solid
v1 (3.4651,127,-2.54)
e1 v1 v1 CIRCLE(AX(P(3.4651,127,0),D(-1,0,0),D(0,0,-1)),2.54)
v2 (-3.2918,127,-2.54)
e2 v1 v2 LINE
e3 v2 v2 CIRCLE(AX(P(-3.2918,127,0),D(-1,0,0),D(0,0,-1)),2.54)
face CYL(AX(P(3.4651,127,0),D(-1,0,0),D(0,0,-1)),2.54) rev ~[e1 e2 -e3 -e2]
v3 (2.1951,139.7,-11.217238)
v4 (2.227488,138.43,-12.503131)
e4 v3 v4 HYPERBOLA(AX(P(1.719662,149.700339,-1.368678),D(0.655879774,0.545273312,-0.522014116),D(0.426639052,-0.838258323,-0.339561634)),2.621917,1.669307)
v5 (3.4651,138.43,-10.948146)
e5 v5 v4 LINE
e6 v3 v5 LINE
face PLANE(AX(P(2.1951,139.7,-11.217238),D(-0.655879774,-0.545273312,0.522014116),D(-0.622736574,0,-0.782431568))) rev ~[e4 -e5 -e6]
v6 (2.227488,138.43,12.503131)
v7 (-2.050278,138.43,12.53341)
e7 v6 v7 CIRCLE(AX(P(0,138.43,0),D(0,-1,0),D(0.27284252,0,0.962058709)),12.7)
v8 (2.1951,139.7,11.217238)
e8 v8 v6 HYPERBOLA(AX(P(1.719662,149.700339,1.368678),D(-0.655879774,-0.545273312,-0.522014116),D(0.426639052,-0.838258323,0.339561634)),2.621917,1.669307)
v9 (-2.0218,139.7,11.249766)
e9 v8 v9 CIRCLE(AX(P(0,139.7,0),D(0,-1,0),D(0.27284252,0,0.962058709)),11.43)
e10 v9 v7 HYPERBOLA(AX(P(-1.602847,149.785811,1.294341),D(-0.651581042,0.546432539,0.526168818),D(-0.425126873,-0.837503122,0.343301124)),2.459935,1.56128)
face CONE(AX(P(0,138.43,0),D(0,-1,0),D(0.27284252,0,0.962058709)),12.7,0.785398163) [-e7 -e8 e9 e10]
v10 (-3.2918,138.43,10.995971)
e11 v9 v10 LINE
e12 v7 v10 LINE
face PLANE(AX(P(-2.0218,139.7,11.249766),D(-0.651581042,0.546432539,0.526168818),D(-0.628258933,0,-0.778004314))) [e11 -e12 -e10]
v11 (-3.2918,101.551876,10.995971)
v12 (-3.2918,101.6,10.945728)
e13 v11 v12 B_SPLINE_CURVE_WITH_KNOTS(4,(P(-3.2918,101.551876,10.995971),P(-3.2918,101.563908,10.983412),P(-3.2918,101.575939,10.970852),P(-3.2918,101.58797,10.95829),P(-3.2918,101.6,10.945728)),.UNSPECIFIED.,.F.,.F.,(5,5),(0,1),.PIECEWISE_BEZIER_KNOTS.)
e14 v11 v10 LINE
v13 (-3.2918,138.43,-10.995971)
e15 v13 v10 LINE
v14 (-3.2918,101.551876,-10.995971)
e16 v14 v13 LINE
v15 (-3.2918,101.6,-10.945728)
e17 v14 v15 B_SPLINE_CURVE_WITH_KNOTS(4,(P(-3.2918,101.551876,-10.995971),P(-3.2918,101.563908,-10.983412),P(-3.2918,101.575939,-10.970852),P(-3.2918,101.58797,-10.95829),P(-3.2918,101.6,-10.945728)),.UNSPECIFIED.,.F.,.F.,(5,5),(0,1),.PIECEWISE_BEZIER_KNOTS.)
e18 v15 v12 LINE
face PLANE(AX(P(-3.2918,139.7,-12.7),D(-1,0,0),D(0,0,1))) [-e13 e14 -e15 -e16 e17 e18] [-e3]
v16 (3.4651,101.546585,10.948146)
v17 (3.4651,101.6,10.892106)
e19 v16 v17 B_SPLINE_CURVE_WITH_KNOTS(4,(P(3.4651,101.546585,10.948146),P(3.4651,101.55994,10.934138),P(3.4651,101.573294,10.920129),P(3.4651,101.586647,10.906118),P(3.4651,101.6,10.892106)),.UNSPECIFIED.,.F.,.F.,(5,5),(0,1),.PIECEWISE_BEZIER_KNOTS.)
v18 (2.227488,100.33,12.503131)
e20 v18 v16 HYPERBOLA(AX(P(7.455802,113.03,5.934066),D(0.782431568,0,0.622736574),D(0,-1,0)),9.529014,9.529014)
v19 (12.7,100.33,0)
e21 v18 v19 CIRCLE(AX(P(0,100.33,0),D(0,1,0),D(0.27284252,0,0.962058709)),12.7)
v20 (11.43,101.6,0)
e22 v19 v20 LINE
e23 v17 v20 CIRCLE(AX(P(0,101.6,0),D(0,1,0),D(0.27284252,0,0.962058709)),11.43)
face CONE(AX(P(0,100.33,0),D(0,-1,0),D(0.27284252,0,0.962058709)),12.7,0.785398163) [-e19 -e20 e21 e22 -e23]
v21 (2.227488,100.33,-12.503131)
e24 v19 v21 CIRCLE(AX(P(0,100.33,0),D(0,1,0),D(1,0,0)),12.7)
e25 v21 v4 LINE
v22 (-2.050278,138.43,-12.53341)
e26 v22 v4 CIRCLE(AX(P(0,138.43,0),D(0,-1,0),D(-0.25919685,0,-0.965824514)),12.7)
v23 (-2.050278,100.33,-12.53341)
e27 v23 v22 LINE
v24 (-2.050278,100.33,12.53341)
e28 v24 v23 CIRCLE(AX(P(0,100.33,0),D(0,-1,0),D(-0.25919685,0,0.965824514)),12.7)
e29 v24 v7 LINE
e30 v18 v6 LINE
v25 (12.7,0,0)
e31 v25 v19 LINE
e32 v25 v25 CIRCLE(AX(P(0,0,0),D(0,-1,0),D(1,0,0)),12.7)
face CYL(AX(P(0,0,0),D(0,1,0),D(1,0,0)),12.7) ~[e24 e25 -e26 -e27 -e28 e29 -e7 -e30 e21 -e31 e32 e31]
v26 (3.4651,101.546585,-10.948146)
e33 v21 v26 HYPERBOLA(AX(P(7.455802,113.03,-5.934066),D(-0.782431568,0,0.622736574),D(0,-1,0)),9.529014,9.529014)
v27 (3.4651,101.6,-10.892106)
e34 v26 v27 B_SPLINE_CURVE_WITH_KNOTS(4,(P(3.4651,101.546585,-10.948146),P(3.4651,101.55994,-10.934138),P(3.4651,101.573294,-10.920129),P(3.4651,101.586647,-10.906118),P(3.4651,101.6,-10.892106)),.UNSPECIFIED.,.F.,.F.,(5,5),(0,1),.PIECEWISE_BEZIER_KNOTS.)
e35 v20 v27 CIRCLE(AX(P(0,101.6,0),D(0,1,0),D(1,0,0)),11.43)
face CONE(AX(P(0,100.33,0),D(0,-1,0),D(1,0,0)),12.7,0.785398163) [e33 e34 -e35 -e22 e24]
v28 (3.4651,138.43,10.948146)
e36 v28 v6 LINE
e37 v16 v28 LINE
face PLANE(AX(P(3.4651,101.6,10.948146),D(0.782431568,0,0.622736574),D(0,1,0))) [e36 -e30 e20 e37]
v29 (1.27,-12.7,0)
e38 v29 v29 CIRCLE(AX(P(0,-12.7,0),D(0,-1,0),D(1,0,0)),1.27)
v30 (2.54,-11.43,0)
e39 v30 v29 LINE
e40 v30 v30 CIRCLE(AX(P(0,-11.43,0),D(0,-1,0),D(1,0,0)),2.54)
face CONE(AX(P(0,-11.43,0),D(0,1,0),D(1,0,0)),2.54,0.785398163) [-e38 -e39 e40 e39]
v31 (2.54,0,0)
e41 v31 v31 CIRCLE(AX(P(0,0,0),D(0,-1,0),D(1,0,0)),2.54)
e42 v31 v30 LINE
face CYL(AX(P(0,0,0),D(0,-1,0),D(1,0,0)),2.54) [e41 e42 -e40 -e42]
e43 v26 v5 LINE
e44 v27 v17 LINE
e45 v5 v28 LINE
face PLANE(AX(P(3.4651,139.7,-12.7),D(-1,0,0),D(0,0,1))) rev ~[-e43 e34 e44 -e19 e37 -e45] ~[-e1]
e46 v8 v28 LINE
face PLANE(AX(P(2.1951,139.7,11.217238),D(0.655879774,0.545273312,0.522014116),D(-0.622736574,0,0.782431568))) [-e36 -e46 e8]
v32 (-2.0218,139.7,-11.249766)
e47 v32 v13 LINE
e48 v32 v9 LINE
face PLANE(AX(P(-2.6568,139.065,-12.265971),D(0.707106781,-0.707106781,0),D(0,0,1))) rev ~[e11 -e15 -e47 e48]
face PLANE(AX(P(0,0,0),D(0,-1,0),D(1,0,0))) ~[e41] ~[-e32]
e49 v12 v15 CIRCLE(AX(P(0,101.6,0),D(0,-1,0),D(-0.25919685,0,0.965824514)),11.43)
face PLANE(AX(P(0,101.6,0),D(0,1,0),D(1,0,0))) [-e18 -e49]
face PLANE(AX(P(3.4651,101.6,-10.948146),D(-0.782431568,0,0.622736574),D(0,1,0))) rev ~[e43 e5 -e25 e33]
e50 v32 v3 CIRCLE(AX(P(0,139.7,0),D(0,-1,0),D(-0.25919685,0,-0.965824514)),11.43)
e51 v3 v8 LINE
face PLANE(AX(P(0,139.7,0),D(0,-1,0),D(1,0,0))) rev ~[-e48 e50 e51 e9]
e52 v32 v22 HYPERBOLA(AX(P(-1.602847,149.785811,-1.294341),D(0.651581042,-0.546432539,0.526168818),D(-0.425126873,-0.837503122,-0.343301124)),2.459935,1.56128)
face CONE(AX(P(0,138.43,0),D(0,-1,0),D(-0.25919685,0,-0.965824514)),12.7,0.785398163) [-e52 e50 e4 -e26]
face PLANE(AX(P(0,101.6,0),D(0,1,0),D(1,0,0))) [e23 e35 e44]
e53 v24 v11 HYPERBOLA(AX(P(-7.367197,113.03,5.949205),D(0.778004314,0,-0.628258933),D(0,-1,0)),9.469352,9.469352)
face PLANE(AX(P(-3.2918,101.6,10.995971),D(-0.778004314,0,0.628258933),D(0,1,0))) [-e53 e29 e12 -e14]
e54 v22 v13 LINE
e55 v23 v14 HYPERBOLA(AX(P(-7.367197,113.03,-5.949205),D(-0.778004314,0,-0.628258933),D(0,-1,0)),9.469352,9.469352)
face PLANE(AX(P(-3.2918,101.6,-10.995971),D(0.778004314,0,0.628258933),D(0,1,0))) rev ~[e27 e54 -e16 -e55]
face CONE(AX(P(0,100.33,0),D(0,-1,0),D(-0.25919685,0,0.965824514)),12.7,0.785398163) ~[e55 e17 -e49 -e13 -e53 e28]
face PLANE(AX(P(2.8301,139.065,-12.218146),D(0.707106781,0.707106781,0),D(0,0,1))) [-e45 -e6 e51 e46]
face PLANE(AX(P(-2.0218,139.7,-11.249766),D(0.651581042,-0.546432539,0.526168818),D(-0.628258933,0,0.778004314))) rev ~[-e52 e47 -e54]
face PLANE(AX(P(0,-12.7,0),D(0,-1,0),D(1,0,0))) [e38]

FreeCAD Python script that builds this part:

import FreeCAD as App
import Part
import Sketcher
Q = App.Units.Quantity


def edges_at(feature, points):
    """Names of the edges that pass closest to the given points."""
    edges = feature.Shape.Edges
    near = lambda p: min(range(len(edges)), key=lambda i: edges[i].distToShape(Part.Vertex(*p))[0])
    return sorted({f"Edge{near(p) + 1}" for p in points})

doc = App.newDocument("Part")
body = doc.addObject("PartDesign::Body", "Body")

# Sketch on XY plane
sketch1 = body.newObject("Sketcher::SketchObject", "Sketch")
sketch1.AttachmentSupport = (doc.getObject("XY_Plane"), [""])
sketch1.MapMode = "FlatFace"
sketch1.addGeometry([
    Part.LineSegment(App.Vector(0, 139.7, 0), App.Vector(0, -12.7, 0)),  # 0
    Part.LineSegment(App.Vector(0, -12.7, 0), App.Vector(2.5, -12.7, 0)),  # 1
    Part.LineSegment(App.Vector(2.5, -12.7, 0), App.Vector(2.5, 0, 0)),  # 2
    Part.LineSegment(App.Vector(2.5, 0, 0), App.Vector(12.7, 0, 0)),  # 3
    Part.LineSegment(App.Vector(12.7, 0, 0), App.Vector(12.7, 139.7, 0)),  # 4
    Part.LineSegment(App.Vector(12.7, 139.7, 0), App.Vector(0, 139.7, 0)),  # 5
], False)
sketch1.addConstraint([
    Sketcher.Constraint("Coincident", 0, 2, 1, 1),
    Sketcher.Constraint("Coincident", 1, 2, 2, 1),
    Sketcher.Constraint("Coincident", 2, 2, 3, 1),
    Sketcher.Constraint("Coincident", 3, 2, 4, 1),
    Sketcher.Constraint("Coincident", 4, 2, 5, 1),
    Sketcher.Constraint("Coincident", 5, 2, 0, 1),
    Sketcher.Constraint("Vertical", 0),
    Sketcher.Constraint("Horizontal", 1),
    Sketcher.Constraint("Vertical", 2),
    Sketcher.Constraint("Horizontal", 3),
    Sketcher.Constraint("Vertical", 4),
    Sketcher.Constraint("Horizontal", 5),
    Sketcher.Constraint("PointOnObject", 0, 2, -2),
    Sketcher.Constraint("PointOnObject", 2, 2, -1),
    Sketcher.Constraint("Equal", 5, 2),
    Sketcher.Constraint("DistanceX", 1, 1, 1, 2, Q("0.1 in")),
    Sketcher.Constraint("DistanceX", 5, 2, 5, 1, Q("0.5 in")),
    Sketcher.Constraint("DistanceY", 4, 1, 4, 2, Q("5.5 in")),
])
revolution = body.newObject("PartDesign::Revolution", "Revolution")
revolution.Profile = sketch1
revolution.ReferenceAxis = (sketch1, ["V_Axis"])
revolution.Angle = 360

# Sketch on XZ plane
sketch2 = body.newObject("Sketcher::SketchObject", "Sketch001")
sketch2.AttachmentSupport = (doc.getObject("XZ_Plane"), [""])
sketch2.MapMode = "FlatFace"
sketch2.AttachmentOffset = App.Placement(App.Vector(0, 0, -5.5 * 25.4), App.Rotation())
sketch2.addGeometry([
    Part.LineSegment(App.Vector(-13, 13, 0), App.Vector(-3, 13, 0)),  # 0
    Part.LineSegment(App.Vector(-3, 13, 0), App.Vector(-3, -13, 0)),  # 1
    Part.LineSegment(App.Vector(-3, -13, 0), App.Vector(-13, -13, 0)),  # 2
    Part.LineSegment(App.Vector(-13, -13, 0), App.Vector(-13, 13, 0)),  # 3
    Part.LineSegment(App.Vector(3, -13, 0), App.Vector(3, 13, 0)),  # 4
    Part.LineSegment(App.Vector(3, 13, 0), App.Vector(13, 13, 0)),  # 5
    Part.LineSegment(App.Vector(13, 13, 0), App.Vector(13, -13, 0)),  # 6
    Part.LineSegment(App.Vector(13, -13, 0), App.Vector(3, -13, 0)),  # 7
], False)
sketch2.addConstraint([
    Sketcher.Constraint("Coincident", 0, 2, 1, 1),
    Sketcher.Constraint("Coincident", 1, 2, 2, 1),
    Sketcher.Constraint("Coincident", 2, 2, 3, 1),
    Sketcher.Constraint("Coincident", 3, 2, 0, 1),
    Sketcher.Constraint("Coincident", 4, 2, 5, 1),
    Sketcher.Constraint("Coincident", 5, 2, 6, 1),
    Sketcher.Constraint("Coincident", 6, 2, 7, 1),
    Sketcher.Constraint("Coincident", 7, 2, 4, 1),
    Sketcher.Constraint("Horizontal", 0),
    Sketcher.Constraint("Vertical", 1),
    Sketcher.Constraint("Horizontal", 2),
    Sketcher.Constraint("Vertical", 3),
    Sketcher.Constraint("Vertical", 4),
    Sketcher.Constraint("Horizontal", 5),
    Sketcher.Constraint("Vertical", 6),
    Sketcher.Constraint("Horizontal", 7),
    Sketcher.Constraint("Symmetric", 2, 2, 5, 2, -1, 1),
    Sketcher.Constraint("Horizontal", 3, 2, 4, 2),
    Sketcher.Constraint("Horizontal", 2, 2, 6, 2),
    Sketcher.Constraint("DistanceY", 1, 2, 1, 1, Q("1 in")),
    Sketcher.Constraint("DistanceX", 3, 2, 5, 2, Q("1 in")),
    Sketcher.Constraint("DistanceX", 0, 1, 0, 2, Q("0.3704 in")),
    Sketcher.Constraint("DistanceX", 5, 1, 5, 2, Q("9.235 mm")),
])
pocket1 = body.newObject("PartDesign::Pocket", "Pocket")
pocket1.Profile = sketch2
pocket1.Length = Q("1.5 in")
pocket1.Reversed = True

# Sketch on YZ plane
sketch3 = body.newObject("Sketcher::SketchObject", "Sketch002")
sketch3.AttachmentSupport = (doc.getObject("YZ_Plane"), [""])
sketch3.MapMode = "FlatFace"
sketch3.AttachmentOffset = App.Placement(App.Vector(0, 0, 3.4651), App.Rotation())
sketch3.addGeometry(Part.Circle(App.Vector(127, 0, 0), App.Vector(0, 0, 1), 2.5), False)
sketch3.addConstraint([
    Sketcher.Constraint("PointOnObject", 0, 3, -1),
    Sketcher.Constraint("Diameter", 0, Q("0.2 in")),
    Sketcher.Constraint("DistanceX", -1, 1, 0, 3, Q("5 in")),
])
doc.recompute()
hole = body.newObject("PartDesign::Hole", "Hole")
hole.Profile = sketch3
hole.ThreadType = "None"
hole.Diameter = Q("0.2 in")
hole.DepthType = "ThroughAll"
doc.recompute()

chamfer = body.newObject("PartDesign::Chamfer", "Chamfer")
chamfer.Base = (hole, edges_at(hole, [
    (10.132, 101.6, -7.658),
    (10.132, 101.6, 7.658),
    (3.465, 120.65, -12.218),
    (3.465, 120.65, 12.218),
    (3.465, 139.7, 0),
    (0.09, 139.7, -12.7),
    (0.09, 139.7, 12.7),
    (-3.292, 139.7, 0),
    (-3.292, 120.65, -12.266),
    (-3.292, 120.65, 12.266),
    (-12.7, 101.6, 0),
    (-2.54, -12.7, 0),
]))
chamfer.Size = Q("0.05 in")

doc.recompute()
